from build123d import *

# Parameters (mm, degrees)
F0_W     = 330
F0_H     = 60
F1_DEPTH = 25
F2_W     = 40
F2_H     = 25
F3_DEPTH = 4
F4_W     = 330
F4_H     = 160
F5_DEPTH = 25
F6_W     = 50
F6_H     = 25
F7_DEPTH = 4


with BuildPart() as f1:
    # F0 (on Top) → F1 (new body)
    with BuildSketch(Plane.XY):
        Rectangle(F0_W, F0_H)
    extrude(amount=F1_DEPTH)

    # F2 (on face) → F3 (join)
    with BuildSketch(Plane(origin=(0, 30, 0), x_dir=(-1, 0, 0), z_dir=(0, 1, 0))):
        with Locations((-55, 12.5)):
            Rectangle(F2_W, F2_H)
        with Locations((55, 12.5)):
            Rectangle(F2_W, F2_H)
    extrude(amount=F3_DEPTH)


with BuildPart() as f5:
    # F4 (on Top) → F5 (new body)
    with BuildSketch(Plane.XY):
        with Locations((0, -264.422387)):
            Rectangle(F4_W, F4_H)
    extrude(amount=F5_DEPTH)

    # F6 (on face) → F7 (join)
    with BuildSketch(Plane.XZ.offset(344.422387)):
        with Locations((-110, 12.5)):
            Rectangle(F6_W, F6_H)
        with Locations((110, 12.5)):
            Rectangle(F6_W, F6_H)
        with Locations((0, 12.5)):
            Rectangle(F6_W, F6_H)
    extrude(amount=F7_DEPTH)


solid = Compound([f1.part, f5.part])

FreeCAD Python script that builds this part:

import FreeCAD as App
import Part
import Sketcher

V = App.Vector


def add_polygon(sketch, points):
    """Adds a closed chain of lines whose ends are joined by coincident constraints."""
    first, n = sketch.GeometryCount, len(points)
    for a, b in zip(points, points[1:] + points[:1]):
        sketch.addGeometry(Part.LineSegment(App.Vector(*a, 0), App.Vector(*b, 0)), False)
    for i in range(n):
        sketch.addConstraint(Sketcher.Constraint("Coincident", first + i, 2, first + (i + 1) % n, 1))

doc = App.newDocument("Part")
params = doc.addObject("Spreadsheet::Sheet", "Params")
for row, (alias, value) in enumerate([
    ("sketch1_width", "330 mm"),
    ("sketch1_height", "60 mm"),
    ("pad1_length", "25 mm"),
    ("sketch2_width", "40 mm"),
    ("sketch2_height", "25 mm"),
    ("pad2_length", "4 mm"),
    ("sketch3_width", "330 mm"),
    ("sketch3_height", "160 mm"),
    ("pad3_length", "25 mm"),
    ("sketch4_width", "50 mm"),
    ("sketch4_height", "25 mm"),
    ("pad4_length", "4 mm"),
], start=1):
    params.set(f"A{row}", alias)
    params.set(f"B{row}", "=" + value)
    params.setAlias(f"B{row}", alias)

body = doc.addObject("PartDesign::Body", "Body")

# Sketch on XY plane
sketch1 = body.newObject("Sketcher::SketchObject", "Sketch")
sketch1.AttachmentSupport = (doc.getObject("XY_Plane"), [""])
sketch1.MapMode = "FlatFace"
add_polygon(sketch1, [(-165, 30), (-165, -30), (165, -30), (165, 30)])  # lines 0-3
sketch1.addConstraint([
    Sketcher.Constraint("Vertical", 0),
    Sketcher.Constraint("Horizontal", 1),
    Sketcher.Constraint("Vertical", 2),
    Sketcher.Constraint("Horizontal", 3),
    Sketcher.Constraint("Symmetric", 0, 2, 2, 2, -1, 1),
    Sketcher.Constraint("DistanceX", 1, 1, 1, 2, 330.0),
    Sketcher.Constraint("DistanceY", 0, 2, 0, 1, 60.0),
])
sketch1.setExpression("Constraints[9]", "Params.sketch1_width")
sketch1.setExpression("Constraints[10]", "Params.sketch1_height")
pad1 = body.newObject("PartDesign::Pad", "Pad")
pad1.Profile = sketch1
pad1.setExpression("Length", "Params.pad1_length")

# Sketch on XZ plane
sketch2 = body.newObject("Sketcher::SketchObject", "Sketch001")
sketch2.AttachmentSupport = (doc.getObject("XZ_Plane"), [""])
sketch2.MapMode = "FlatFace"
sketch2.AttachmentOffset = App.Placement(V(0, 0, -30), App.Rotation())
add_polygon(sketch2, [(75, 25), (75, 0), (35, 0), (35, 25)])  # lines 0-3
add_polygon(sketch2, [(-35, 25), (-35, 0), (-75, 0), (-75, 25)])  # lines 4-7
sketch2.addConstraint([
    Sketcher.Constraint("Vertical", 0),
    Sketcher.Constraint("Horizontal", 1),
    Sketcher.Constraint("Vertical", 2),
    Sketcher.Constraint("Horizontal", 3),
    Sketcher.Constraint("Vertical", 4),
    Sketcher.Constraint("Horizontal", 5),
    Sketcher.Constraint("Vertical", 6),
    Sketcher.Constraint("Horizontal", 7),
    Sketcher.Constraint("Symmetric", 1, 2, 4, 2, -1, 1),
    Sketcher.Constraint("Symmetric", 0, 2, 5, 2, -2),
    Sketcher.Constraint("Horizontal", 3, 2, 6, 2),
    Sketcher.Constraint("DistanceX", 1, 2, 1, 1, 40.0),
    Sketcher.Constraint("DistanceY", 0, 2, 0, 1, 25.0),
    Sketcher.Constraint("DistanceX", -1, 1, 0, 2, 75.0),
])
sketch2.setExpression("Constraints[19]", "Params.sketch2_width")
sketch2.setExpression("Constraints[20]", "Params.sketch2_height")
pad2 = body.newObject("PartDesign::Pad", "Pad001")
pad2.Profile = sketch2
pad2.setExpression("Length", "Params.pad2_length")
pad2.Reversed = True
body2 = doc.addObject("PartDesign::Body", "Body001")

# Sketch on XY plane
sketch3 = body2.newObject("Sketcher::SketchObject", "Sketch002")
sketch3.AttachmentSupport = (doc.getObject("XY_Plane001"), [""])
sketch3.MapMode = "FlatFace"
add_polygon(sketch3, [(-165, -184), (-165, -344), (165, -344), (165, -184)])  # lines 0-3
sketch3.addConstraint([
    Sketcher.Constraint("Vertical", 0),
    Sketcher.Constraint("Horizontal", 1),
    Sketcher.Constraint("Vertical", 2),
    Sketcher.Constraint("Horizontal", 3),
    Sketcher.Constraint("DistanceX", 1, 1, 1, 2, 330.0),
    Sketcher.Constraint("DistanceY", 0, 2, 0, 1, 160.0),
    Sketcher.Constraint("DistanceX", 0, 2, -1, 1, 165.0),
    Sketcher.Constraint("DistanceY", 0, 2, -1, 1, 344.422387),
])
sketch3.setExpression("Constraints[8]", "Params.sketch3_width")
sketch3.setExpression("Constraints[9]", "Params.sketch3_height")
pad3 = body2.newObject("PartDesign::Pad", "Pad002")
pad3.Profile = sketch3
pad3.setExpression("Length", "Params.pad3_length")

# Sketch on XZ plane
sketch4 = body2.newObject("Sketcher::SketchObject", "Sketch003")
sketch4.AttachmentSupport = (doc.getObject("XZ_Plane001"), [""])
sketch4.MapMode = "FlatFace"
sketch4.AttachmentOffset = App.Placement(V(0, 0, 344.422387), App.Rotation())
add_polygon(sketch4, [(-135, 25), (-135, 0), (-85, 0), (-85, 25)])  # lines 0-3
add_polygon(sketch4, [(85, 25), (85, 0), (135, 0), (135, 25)])  # lines 4-7
add_polygon(sketch4, [(-25, 25), (-25, 0), (25, 0), (25, 25)])  # lines 8-11
sketch4.addConstraint([
    Sketcher.Constraint("Vertical", 0),
    Sketcher.Constraint("Horizontal", 1),
    Sketcher.Constraint("Vertical", 2),
    Sketcher.Constraint("Horizontal", 3),
    Sketcher.Constraint("Vertical", 4),
    Sketcher.Constraint("Horizontal", 5),
    Sketcher.Constraint("Vertical", 6),
    Sketcher.Constraint("Horizontal", 7),
    Sketcher.Constraint("Vertical", 8),
    Sketcher.Constraint("Horizontal", 9),
    Sketcher.Constraint("Vertical", 10),
    Sketcher.Constraint("Horizontal", 11),
    Sketcher.Constraint("Symmetric", 1, 2, 4, 2, -1, 1),
    Sketcher.Constraint("Symmetric", 8, 2, 9, 2, -1, 1),
    Sketcher.Constraint("Symmetric", 0, 2, 5, 2, -2),
    Sketcher.Constraint("Horizontal", 3, 2, 6, 2),
    Sketcher.Constraint("Horizontal", 7, 2, 10, 2),
    Sketcher.Constraint("Equal", 7, 9),
    Sketcher.Constraint("DistanceX", 1, 1, 1, 2, 50.0),
    Sketcher.Constraint("DistanceY", 0, 2, 0, 1, 25.0),
    Sketcher.Constraint("DistanceX", 0, 2, -1, 1, 135.0),
])
sketch4.setExpression("Constraints[30]", "Params.sketch4_width")
sketch4.setExpression("Constraints[31]", "Params.sketch4_height")
pad4 = body2.newObject("PartDesign::Pad", "Pad003")
pad4.Profile = sketch4
pad4.setExpression("Length", "Params.pad4_length")

doc.recompute()
